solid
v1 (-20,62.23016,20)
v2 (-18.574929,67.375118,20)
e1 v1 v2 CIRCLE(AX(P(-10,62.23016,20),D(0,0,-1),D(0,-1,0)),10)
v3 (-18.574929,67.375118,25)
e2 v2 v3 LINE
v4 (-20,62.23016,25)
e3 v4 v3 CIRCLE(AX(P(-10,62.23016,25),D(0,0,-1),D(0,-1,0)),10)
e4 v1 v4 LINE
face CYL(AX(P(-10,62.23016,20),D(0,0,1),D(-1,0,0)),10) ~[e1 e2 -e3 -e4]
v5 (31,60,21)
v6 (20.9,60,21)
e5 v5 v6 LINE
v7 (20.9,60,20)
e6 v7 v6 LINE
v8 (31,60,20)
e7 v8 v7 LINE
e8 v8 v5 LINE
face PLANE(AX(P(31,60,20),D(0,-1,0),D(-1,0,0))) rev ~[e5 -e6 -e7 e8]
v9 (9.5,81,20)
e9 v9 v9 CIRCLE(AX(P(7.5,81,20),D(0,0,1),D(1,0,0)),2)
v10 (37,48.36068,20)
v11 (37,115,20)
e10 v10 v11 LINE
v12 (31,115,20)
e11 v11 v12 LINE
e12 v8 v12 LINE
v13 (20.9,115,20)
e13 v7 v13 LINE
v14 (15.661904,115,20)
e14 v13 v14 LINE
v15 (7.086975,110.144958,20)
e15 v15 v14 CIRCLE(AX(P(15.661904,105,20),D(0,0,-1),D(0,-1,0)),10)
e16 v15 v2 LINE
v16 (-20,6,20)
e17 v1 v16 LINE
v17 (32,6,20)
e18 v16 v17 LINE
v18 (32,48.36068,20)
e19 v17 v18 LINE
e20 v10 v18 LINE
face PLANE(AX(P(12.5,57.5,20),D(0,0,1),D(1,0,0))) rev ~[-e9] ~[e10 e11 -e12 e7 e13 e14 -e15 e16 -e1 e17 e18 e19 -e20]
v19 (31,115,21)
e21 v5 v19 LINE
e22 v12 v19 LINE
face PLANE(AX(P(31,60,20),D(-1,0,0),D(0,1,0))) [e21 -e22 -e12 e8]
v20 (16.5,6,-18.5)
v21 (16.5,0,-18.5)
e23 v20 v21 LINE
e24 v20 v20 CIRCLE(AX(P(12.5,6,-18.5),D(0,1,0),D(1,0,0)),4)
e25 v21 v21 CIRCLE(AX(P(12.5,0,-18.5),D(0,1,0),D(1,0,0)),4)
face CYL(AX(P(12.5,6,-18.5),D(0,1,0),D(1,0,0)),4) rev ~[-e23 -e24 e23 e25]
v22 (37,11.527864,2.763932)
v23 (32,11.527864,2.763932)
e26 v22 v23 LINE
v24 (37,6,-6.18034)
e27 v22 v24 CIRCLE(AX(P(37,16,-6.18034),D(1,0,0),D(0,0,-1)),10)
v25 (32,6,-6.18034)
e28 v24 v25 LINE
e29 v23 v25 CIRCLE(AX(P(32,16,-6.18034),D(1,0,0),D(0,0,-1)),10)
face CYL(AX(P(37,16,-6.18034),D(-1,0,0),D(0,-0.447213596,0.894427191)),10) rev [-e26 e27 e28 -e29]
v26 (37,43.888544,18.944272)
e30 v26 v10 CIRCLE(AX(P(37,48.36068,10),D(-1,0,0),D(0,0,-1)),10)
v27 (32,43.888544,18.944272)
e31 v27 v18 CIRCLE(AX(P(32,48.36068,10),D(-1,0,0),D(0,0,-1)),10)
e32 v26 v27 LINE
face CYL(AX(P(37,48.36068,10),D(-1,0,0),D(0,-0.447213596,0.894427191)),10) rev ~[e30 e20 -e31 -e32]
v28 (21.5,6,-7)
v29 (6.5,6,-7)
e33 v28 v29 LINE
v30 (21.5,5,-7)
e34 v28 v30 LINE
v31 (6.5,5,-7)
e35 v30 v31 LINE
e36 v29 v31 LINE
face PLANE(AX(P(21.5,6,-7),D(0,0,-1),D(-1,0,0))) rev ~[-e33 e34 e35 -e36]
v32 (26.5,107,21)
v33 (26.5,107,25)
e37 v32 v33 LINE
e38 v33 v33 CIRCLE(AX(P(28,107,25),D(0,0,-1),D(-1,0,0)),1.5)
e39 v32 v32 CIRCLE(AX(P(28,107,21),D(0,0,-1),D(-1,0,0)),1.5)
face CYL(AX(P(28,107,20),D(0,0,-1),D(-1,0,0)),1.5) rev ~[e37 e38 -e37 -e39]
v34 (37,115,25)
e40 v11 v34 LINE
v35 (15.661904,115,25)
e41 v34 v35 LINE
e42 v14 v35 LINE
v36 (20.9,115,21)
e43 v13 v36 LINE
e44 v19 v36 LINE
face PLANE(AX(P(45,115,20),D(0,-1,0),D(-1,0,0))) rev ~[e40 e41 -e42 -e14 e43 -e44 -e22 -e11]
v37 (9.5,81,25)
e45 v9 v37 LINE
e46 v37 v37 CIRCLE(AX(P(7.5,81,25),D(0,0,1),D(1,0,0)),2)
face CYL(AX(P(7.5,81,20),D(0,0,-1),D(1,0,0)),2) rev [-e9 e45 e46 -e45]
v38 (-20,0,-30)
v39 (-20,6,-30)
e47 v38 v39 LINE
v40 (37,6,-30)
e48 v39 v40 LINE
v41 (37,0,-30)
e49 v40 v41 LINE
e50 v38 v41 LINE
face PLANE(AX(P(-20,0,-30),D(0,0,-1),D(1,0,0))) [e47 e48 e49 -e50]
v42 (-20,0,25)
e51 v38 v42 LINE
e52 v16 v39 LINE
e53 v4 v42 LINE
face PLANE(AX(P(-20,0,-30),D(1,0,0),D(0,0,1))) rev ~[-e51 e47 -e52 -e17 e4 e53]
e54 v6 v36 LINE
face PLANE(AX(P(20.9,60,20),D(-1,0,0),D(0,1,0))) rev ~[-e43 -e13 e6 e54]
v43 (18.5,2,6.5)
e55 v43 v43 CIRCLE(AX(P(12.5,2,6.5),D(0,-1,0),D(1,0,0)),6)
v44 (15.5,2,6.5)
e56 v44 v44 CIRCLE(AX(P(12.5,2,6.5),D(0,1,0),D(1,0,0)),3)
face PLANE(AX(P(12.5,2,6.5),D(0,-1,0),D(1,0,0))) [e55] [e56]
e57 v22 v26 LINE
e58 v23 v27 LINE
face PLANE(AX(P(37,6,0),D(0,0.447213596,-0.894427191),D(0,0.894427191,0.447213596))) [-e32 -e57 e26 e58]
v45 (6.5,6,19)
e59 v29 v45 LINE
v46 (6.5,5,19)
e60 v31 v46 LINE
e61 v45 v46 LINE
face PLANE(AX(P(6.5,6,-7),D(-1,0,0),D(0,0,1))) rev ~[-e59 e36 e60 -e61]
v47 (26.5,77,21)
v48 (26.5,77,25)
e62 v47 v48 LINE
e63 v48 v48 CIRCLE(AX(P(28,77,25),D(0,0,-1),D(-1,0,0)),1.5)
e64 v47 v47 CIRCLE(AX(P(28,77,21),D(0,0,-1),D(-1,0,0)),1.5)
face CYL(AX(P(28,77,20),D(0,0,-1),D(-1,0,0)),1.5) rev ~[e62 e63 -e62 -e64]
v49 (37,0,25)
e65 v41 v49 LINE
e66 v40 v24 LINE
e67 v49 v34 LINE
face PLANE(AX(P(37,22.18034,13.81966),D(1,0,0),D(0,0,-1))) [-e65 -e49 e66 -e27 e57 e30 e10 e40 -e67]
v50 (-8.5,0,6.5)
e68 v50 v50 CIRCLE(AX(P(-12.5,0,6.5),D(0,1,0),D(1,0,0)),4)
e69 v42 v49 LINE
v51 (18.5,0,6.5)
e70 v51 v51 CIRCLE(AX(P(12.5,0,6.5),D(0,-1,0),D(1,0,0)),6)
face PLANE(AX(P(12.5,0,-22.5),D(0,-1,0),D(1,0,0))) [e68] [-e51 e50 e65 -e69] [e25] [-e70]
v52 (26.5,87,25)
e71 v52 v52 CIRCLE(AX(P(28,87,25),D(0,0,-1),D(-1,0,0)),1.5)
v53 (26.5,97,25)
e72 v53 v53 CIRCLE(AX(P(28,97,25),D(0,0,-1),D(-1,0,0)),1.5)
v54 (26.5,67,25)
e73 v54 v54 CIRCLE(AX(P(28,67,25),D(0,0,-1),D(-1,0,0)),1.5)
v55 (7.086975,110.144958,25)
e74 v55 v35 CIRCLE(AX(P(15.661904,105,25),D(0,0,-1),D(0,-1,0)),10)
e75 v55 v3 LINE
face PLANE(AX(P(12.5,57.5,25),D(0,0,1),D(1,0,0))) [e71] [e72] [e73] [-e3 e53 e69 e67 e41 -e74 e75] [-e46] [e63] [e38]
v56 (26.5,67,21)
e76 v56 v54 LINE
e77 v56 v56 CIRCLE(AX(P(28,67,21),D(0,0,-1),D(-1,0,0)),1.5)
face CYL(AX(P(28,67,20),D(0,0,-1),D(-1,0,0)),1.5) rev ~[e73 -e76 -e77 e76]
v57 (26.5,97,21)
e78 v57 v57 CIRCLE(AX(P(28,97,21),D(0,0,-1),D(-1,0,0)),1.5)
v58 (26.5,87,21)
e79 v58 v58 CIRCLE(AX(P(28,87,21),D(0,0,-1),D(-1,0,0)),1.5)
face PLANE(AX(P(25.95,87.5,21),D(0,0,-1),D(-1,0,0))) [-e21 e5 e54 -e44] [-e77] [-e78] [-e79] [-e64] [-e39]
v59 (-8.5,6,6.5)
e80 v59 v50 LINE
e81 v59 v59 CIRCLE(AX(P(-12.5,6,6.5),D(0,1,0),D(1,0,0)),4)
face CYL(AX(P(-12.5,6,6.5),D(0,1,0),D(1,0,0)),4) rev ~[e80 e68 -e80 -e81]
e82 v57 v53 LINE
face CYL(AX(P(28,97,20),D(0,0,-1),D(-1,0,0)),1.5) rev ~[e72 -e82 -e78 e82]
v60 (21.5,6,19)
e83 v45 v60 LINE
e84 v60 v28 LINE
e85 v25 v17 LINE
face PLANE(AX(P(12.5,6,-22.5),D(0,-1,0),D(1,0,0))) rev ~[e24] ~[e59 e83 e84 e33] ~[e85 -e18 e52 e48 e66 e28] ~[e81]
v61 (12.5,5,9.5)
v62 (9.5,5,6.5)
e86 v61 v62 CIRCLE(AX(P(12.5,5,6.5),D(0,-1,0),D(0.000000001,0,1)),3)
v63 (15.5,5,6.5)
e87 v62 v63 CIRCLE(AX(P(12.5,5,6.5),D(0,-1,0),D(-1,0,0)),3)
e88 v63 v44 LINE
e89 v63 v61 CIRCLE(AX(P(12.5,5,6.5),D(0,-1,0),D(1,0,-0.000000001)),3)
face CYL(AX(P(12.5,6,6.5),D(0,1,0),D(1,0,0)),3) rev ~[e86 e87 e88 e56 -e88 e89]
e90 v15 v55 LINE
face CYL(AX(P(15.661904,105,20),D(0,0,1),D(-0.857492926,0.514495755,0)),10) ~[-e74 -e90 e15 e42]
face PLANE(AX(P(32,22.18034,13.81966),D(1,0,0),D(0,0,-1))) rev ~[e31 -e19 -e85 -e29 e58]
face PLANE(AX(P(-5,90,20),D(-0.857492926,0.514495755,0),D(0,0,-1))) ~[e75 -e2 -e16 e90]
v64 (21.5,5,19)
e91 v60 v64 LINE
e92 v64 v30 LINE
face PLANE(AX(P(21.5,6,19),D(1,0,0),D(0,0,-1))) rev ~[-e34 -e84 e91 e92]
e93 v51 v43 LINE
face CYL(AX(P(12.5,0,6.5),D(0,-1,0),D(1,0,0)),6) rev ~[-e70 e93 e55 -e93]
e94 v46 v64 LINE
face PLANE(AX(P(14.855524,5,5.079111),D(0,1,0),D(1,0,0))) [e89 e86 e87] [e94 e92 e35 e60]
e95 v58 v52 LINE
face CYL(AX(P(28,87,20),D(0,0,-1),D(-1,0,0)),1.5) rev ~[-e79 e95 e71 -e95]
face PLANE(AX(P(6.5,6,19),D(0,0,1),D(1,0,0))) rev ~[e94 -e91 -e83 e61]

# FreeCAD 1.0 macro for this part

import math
import FreeCAD as App
import Part
import Sketcher

V = App.Vector


def edges_at(feature, points):
    """Names of the edges that pass closest to the given points."""
    edges = feature.Shape.Edges
    near = lambda p: min(range(len(edges)), key=lambda i: edges[i].distToShape(Part.Vertex(*p))[0])
    return sorted({f"Edge{near(p) + 1}" for p in points})

doc = App.newDocument("Part")
body = doc.addObject("PartDesign::Body", "Body")

sketch1 = doc.addObject("Sketcher::SketchObject", "Sketch")
body.addObject(sketch1)
sketch1.AttachmentSupport = (doc.XZ_Plane, [""])
sketch1.MapMode = "FlatFace"
sketch1.addGeometry([
    Part.LineSegment(V(-20, -15, 0), V(-20, 20, 0)),
    Part.LineSegment(V(-20, 20, 0), V(45, 20, 0)),
    Part.LineSegment(V(45, 20, 0), V(45, -15, 0)),
    Part.LineSegment(V(45, -15, 0), V(-20, -15, 0)),
], False)
sketch1.addConstraint([
    Sketcher.Constraint("Coincident", 0, 2, 1, 1),
    Sketcher.Constraint("Coincident", 1, 2, 2, 1),
    Sketcher.Constraint("Coincident", 2, 2, 3, 1),
    Sketcher.Constraint("Coincident", 3, 2, 0, 1),
    Sketcher.Constraint("Vertical", 0),
    Sketcher.Constraint("Horizontal", 1),
    Sketcher.Constraint("Vertical", 2),
    Sketcher.Constraint("Horizontal", 3),
    Sketcher.Constraint("DistanceX", 1, 1, 1, 2, 65.0),
    Sketcher.Constraint("DistanceY", 0, 1, 0, 2, 35.0),
    Sketcher.Constraint("DistanceX", 0, 2, -1, 1, 20.0),
    Sketcher.Constraint("DistanceY", -1, 1, 0, 2, 20.0),
])
pad1 = doc.addObject("PartDesign::Pad", "Pad")
body.addObject(pad1)
pad1.Profile = sketch1
pad1.Length = 6
pad1.Reversed = True

sketch2 = doc.addObject("Sketcher::SketchObject", "Sketch001")
body.addObject(sketch2)
sketch2.AttachmentSupport = (doc.XZ_Plane, [""])
sketch2.MapMode = "FlatFace"
sketch2.AttachmentOffset = App.Placement(V(0, 0, -6), App.Rotation())
sketch2.addGeometry([
    Part.Circle(V(12.5, 6.5, 0), V(0, 0, 1), 3),
    Part.Circle(V(-12.5, 6.5, 0), V(0, 0, 1), 4),
], False)
sketch2.addConstraint([
    Sketcher.Constraint("Symmetric", 0, 3, 1, 3, -2),
    Sketcher.Constraint("Diameter", 0, 6.0),
    Sketcher.Constraint("Diameter", 1, 8.0),
    Sketcher.Constraint("DistanceX", 1, 3, 0, 3, 25.0),
    Sketcher.Constraint("DistanceY", -1, 1, 0, 3, 6.5),
])
pocket1 = doc.addObject("PartDesign::Pocket", "Pocket")
body.addObject(pocket1)
pocket1.Profile = sketch2
pocket1.Type = "ThroughAll"
pocket1.Reversed = True

sketch3 = doc.addObject("Sketcher::SketchObject", "Sketch002")
body.addObject(sketch3)
sketch3.AttachmentSupport = (doc.XZ_Plane, [""])
sketch3.MapMode = "FlatFace"
sketch3.AttachmentOffset = App.Placement(V(0, 0, -6), App.Rotation())
sketch3.addGeometry([
    Part.LineSegment(V(21.5, 19, 0), V(21.5, -7, 0)),
    Part.LineSegment(V(21.5, -7, 0), V(6.5, -7, 0)),
    Part.LineSegment(V(6.5, -7, 0), V(6.5, 19, 0)),
    Part.LineSegment(V(6.5, 19, 0), V(21.5, 19, 0)),
    Part.ArcOfCircle(Part.Circle(V(12.5, 6.5, 0), V(0, 0, 1), 3), math.radians(180), math.radians(360)),
    Part.ArcOfCircle(Part.Circle(V(12.5, 6.5, 0), V(0, 0, 1), 3), math.radians(0), math.radians(90)),
    Part.ArcOfCircle(Part.Circle(V(12.5, 6.5, 0), V(0, 0, 1), 3), math.radians(90), math.radians(180)),
], False)
sketch3.addConstraint([
    Sketcher.Constraint("Coincident", 0, 2, 1, 1),
    Sketcher.Constraint("Coincident", 1, 2, 2, 1),
    Sketcher.Constraint("Coincident", 2, 2, 3, 1),
    Sketcher.Constraint("Coincident", 3, 2, 0, 1),
    Sketcher.Constraint("Tangent", 4, 2, 5, 1),
    Sketcher.Constraint("Tangent", 5, 2, 6, 1),
    Sketcher.Constraint("Tangent", 6, 2, 4, 1),
    Sketcher.Constraint("Vertical", 0),
    Sketcher.Constraint("Horizontal", 1),
    Sketcher.Constraint("Vertical", 2),
    Sketcher.Constraint("Horizontal", 3),
    Sketcher.Constraint("Horizontal", 6, 3, 4, 2),
    Sketcher.Constraint("Horizontal", 4, 2, 6, 2),
    Sketcher.Constraint("Vertical", 6, 3, 5, 2),
    Sketcher.Constraint("Radius", 4, 3.0),
    Sketcher.Constraint("DistanceX", 1, 2, 1, 1, 15.0),
    Sketcher.Constraint("DistanceY", 0, 2, 0, 1, 26.0),
    Sketcher.Constraint("DistanceY", 0, 2, -1, 1, 7.0),
    Sketcher.Constraint("DistanceX", 4, 3, 0, 2, 9.0),
    Sketcher.Constraint("DistanceX", -1, 1, 4, 3, 12.5),
    Sketcher.Constraint("DistanceY", -1, 1, 4, 3, 6.5),
])
pocket2 = doc.addObject("PartDesign::Pocket", "Pocket001")
body.addObject(pocket2)
pocket2.Profile = sketch3
pocket2.Length = 1
pocket2.Reversed = True

sketch4 = doc.addObject("Sketcher::SketchObject", "Sketch003")
body.addObject(sketch4)
sketch4.AttachmentSupport = (doc.XY_Plane, [""])
sketch4.MapMode = "FlatFace"
sketch4.AttachmentOffset = App.Placement(V(0, 0, 20), App.Rotation())
sketch4.addGeometry([
    Part.LineSegment(V(-20, 0, 0), V(45, 0, 0)),
    Part.LineSegment(V(45, 0, 0), V(45, 115, 0)),
    Part.LineSegment(V(45, 115, 0), V(-20, 115, 0)),
    Part.LineSegment(V(-20, 115, 0), V(-20, 0, 0)),
    Part.Circle(V(7.5, 81, 0), V(0, 0, 1), 2),
], False)
sketch4.addConstraint([
    Sketcher.Constraint("Coincident", 0, 2, 1, 1),
    Sketcher.Constraint("Coincident", 1, 2, 2, 1),
    Sketcher.Constraint("Coincident", 2, 2, 3, 1),
    Sketcher.Constraint("Coincident", 3, 2, 0, 1),
    Sketcher.Constraint("Horizontal", 0),
    Sketcher.Constraint("Vertical", 1),
    Sketcher.Constraint("Horizontal", 2),
    Sketcher.Constraint("Vertical", 3),
    Sketcher.Constraint("PointOnObject", 0, 2, -1),
    Sketcher.Constraint("Diameter", 4, 4.0),
    Sketcher.Constraint("DistanceX", 0, 1, 0, 2, 65.0),
    Sketcher.Constraint("DistanceY", 1, 1, 1, 2, 115.0),
    Sketcher.Constraint("DistanceY", -1, 1, 4, 3, 81.0),
    Sketcher.Constraint("DistanceX", -1, 1, 0, 2, 45.0),
    Sketcher.Constraint("DistanceX", -1, 1, 4, 3, 7.5),
])
pad2 = doc.addObject("PartDesign::Pad", "Pad001")
body.addObject(pad2)
pad2.Profile = sketch4
pad2.Length = 5

sketch5 = doc.addObject("Sketcher::SketchObject", "Sketch004")
body.addObject(sketch5)
sketch5.AttachmentSupport = (doc.XY_Plane, [""])
sketch5.MapMode = "FlatFace"
sketch5.AttachmentOffset = App.Placement(V(0, 0, 20), App.Rotation())
sketch5.addGeometry(Part.Circle(V(28, 87, 0), V(0, 0, 1), 1.5), False)
sketch5.addConstraint([
    Sketcher.Constraint("Diameter", 0, 3.0),
    Sketcher.Constraint("DistanceX", -1, 1, 0, 3, 28.0),
    Sketcher.Constraint("DistanceY", -1, 1, 0, 3, 87.0),
])
pocket3 = doc.addObject("PartDesign::Pocket", "Pocket002")
body.addObject(pocket3)
pocket3.Profile = sketch5
pocket3.Type = "ThroughAll"
pocket3.Reversed = True

sketch6 = doc.addObject("Sketcher::SketchObject", "Sketch005")
body.addObject(sketch6)
sketch6.AttachmentSupport = (doc.XY_Plane, [""])
sketch6.MapMode = "FlatFace"
sketch6.AttachmentOffset = App.Placement(V(0, 0, 20), App.Rotation())
sketch6.addGeometry([
    Part.LineSegment(V(31, 115, 0), V(31, 60, 0)),
    Part.LineSegment(V(31, 60, 0), V(20.9, 60, 0)),
    Part.LineSegment(V(20.9, 60, 0), V(20.9, 115, 0)),
    Part.LineSegment(V(20.9, 115, 0), V(31, 115, 0)),
    Part.Circle(V(28, 87, 0), V(0, 0, 1), 1.5),
], False)
sketch6.addConstraint([
    Sketcher.Constraint("Coincident", 0, 2, 1, 1),
    Sketcher.Constraint("Coincident", 1, 2, 2, 1),
    Sketcher.Constraint("Coincident", 2, 2, 3, 1),
    Sketcher.Constraint("Coincident", 3, 2, 0, 1),
    Sketcher.Constraint("Vertical", 0),
    Sketcher.Constraint("Horizontal", 1),
    Sketcher.Constraint("Vertical", 2),
    Sketcher.Constraint("Horizontal", 3),
    Sketcher.Constraint("Diameter", 4, 3.0),
    Sketcher.Constraint("DistanceY", 0, 2, 0, 1, 55.0),
    Sketcher.Constraint("DistanceX", 1, 2, 1, 1, 10.1),
    Sketcher.Constraint("DistanceX", -1, 1, 4, 3, 28.0),
    Sketcher.Constraint("DistanceY", -1, 1, 4, 3, 87.0),
    Sketcher.Constraint("DistanceX", -1, 1, 0, 2, 31.0),
    Sketcher.Constraint("DistanceY", -1, 1, 0, 2, 60.0),
])
pocket4 = doc.addObject("PartDesign::Pocket", "Pocket003")
body.addObject(pocket4)
pocket4.Profile = sketch6
pocket4.Length = 1
pocket4.Reversed = True

sketch7 = doc.addObject("Sketcher::SketchObject", "Sketch006")
body.addObject(sketch7)
sketch7.AttachmentSupport = (doc.XZ_Plane, [""])
sketch7.MapMode = "FlatFace"
sketch7.addGeometry(Part.Circle(V(12.5, 6.5, 0), V(0, 0, 1), 6), False)
sketch7.addConstraint([
    Sketcher.Constraint("Diameter", 0, 12.0),
    Sketcher.Constraint("DistanceX", -1, 1, 0, 3, 12.5),
    Sketcher.Constraint("DistanceY", -1, 1, 0, 3, 6.5),
])
pocket5 = doc.addObject("PartDesign::Pocket", "Pocket004")
body.addObject(pocket5)
pocket5.Profile = sketch7
pocket5.Length = 2

sketch8 = doc.addObject("Sketcher::SketchObject", "Sketch007")
body.addObject(sketch8)
sketch8.AttachmentSupport = (doc.XZ_Plane, [""])
sketch8.MapMode = "FlatFace"
sketch8.addGeometry([
    Part.LineSegment(V(-20, -15, 0), V(-20, -30, 0)),
    Part.LineSegment(V(-20, -30, 0), V(45, -30, 0)),
    Part.LineSegment(V(45, -30, 0), V(45, -15, 0)),
    Part.LineSegment(V(45, -15, 0), V(-20, -15, 0)),
], False)
sketch8.addConstraint([
    Sketcher.Constraint("Coincident", 0, 2, 1, 1),
    Sketcher.Constraint("Coincident", 1, 2, 2, 1),
    Sketcher.Constraint("Coincident", 2, 2, 3, 1),
    Sketcher.Constraint("Coincident", 3, 2, 0, 1),
    Sketcher.Constraint("Vertical", 0),
    Sketcher.Constraint("Horizontal", 1),
    Sketcher.Constraint("Vertical", 2),
    Sketcher.Constraint("Horizontal", 3),
    Sketcher.Constraint("DistanceX", 1, 1, 1, 2, 65.0),
    Sketcher.Constraint("DistanceY", 0, 2, 0, 1, 15.0),
    Sketcher.Constraint("DistanceX", 0, 2, -1, 1, 20.0),
    Sketcher.Constraint("DistanceY", 0, 2, -1, 1, 30.0),
])
pad3 = doc.addObject("PartDesign::Pad", "Pad002")
body.addObject(pad3)
pad3.Profile = sketch8
pad3.Length = 6
pad3.Reversed = True

sketch9 = doc.addObject("Sketcher::SketchObject", "Sketch008")
body.addObject(sketch9)
sketch9.AttachmentSupport = (doc.XZ_Plane, [""])
sketch9.MapMode = "FlatFace"
sketch9.AttachmentOffset = App.Placement(V(0, 0, -6), App.Rotation())
sketch9.addGeometry(Part.Circle(V(12.5, -18.5, 0), V(0, 0, 1), 4), False)
sketch9.addConstraint([
    Sketcher.Constraint("Diameter", 0, 8.0),
    Sketcher.Constraint("DistanceX", -1, 1, 0, 3, 12.5),
    Sketcher.Constraint("DistanceY", 0, 3, -1, 1, 18.5),
])
pocket6 = doc.addObject("PartDesign::Pocket", "Pocket005")
body.addObject(pocket6)
pocket6.Profile = sketch9
pocket6.Length = 6
pocket6.Reversed = True

sketch10 = doc.addObject("Sketcher::SketchObject", "Sketch009")
body.addObject(sketch10)
sketch10.AttachmentSupport = (doc.YZ_Plane, [""])
sketch10.MapMode = "FlatFace"
sketch10.AttachmentOffset = App.Placement(V(0, 0, 45), App.Rotation())
sketch10.addGeometry([
    Part.LineSegment(V(195.289563, 121.356725, 0), V(-4.554309, 121.356725, 0)),
    Part.LineSegment(V(-4.554309, 121.356725, 0), V(-4.554309, -40.609762, 0)),
    Part.LineSegment(V(-4.554309, -40.609762, 0), V(195.289563, -40.609762, 0)),
    Part.LineSegment(V(195.289563, -40.609762, 0), V(195.289563, 121.356725, 0)),
], False)
sketch10.addConstraint([
    Sketcher.Constraint("Coincident", 0, 2, 1, 1),
    Sketcher.Constraint("Coincident", 1, 2, 2, 1),
    Sketcher.Constraint("Coincident", 2, 2, 3, 1),
    Sketcher.Constraint("Coincident", 3, 2, 0, 1),
    Sketcher.Constraint("Horizontal", 0),
    Sketcher.Constraint("Vertical", 1),
    Sketcher.Constraint("Horizontal", 2),
    Sketcher.Constraint("Vertical", 3),
    Sketcher.Constraint("DistanceX", 0, 2, 0, 1, 199.843872),
    Sketcher.Constraint("DistanceY", 1, 2, 1, 1, 161.966487),
    Sketcher.Constraint("DistanceX", 0, 2, -1, 1, 4.554309),
    Sketcher.Constraint("DistanceY", 1, 2, -1, 1, 40.609762),
])
pocket7 = doc.addObject("PartDesign::Pocket", "Pocket006")
body.addObject(pocket7)
pocket7.Profile = sketch10
pocket7.Length = 8
doc.recompute()

linearpattern = doc.addObject("PartDesign::LinearPattern", "LinearPattern")
body.addObject(linearpattern)
linearpattern.Originals = [pocket3]
linearpattern.Direction = (doc.Y_Axis, [""])
linearpattern.Mode = "offset"
linearpattern.Offset = 10
linearpattern.Occurrences = 3
linearpattern.Reversed = True
body.Tip = linearpattern
doc.recompute()

linearpattern2 = doc.addObject("PartDesign::LinearPattern", "LinearPattern001")
body.addObject(linearpattern2)
linearpattern2.Originals = [pocket3]
linearpattern2.Direction = (doc.Y_Axis, [""])
linearpattern2.Mode = "offset"
linearpattern2.Offset = 10
linearpattern2.Occurrences = 3
body.Tip = linearpattern2
doc.recompute()

chamfer = doc.addObject("PartDesign::Chamfer", "Chamfer")
body.addObject(chamfer)
chamfer.Base = (linearpattern2, edges_at(linearpattern2, [(-20, 115, 22.5)]))
chamfer.ChamferType = "Two distances"
chamfer.Size = 30
chamfer.Size2 = 50
doc.recompute()

fillet = doc.addObject("PartDesign::Fillet", "Fillet")
body.addObject(fillet)
fillet.Base = (chamfer, edges_at(chamfer, [(-20, 65, 22.5), (10, 115, 22.5)]))
fillet.Radius = 10

sketch11 = doc.addObject("Sketcher::SketchObject", "Sketch010")
body.addObject(sketch11)
sketch11.AttachmentSupport = (doc.YZ_Plane, [""])
sketch11.MapMode = "FlatFace"
sketch11.AttachmentOffset = App.Placement(V(0, 0, 37), App.Rotation())
sketch11.addGeometry([
    Part.LineSegment(V(6, 20, 0), V(6, 0, 0)),
    Part.LineSegment(V(6, 0, 0), V(46, 20, 0)),
    Part.LineSegment(V(46, 20, 0), V(6, 20, 0)),
], False)
sketch11.addConstraint([
    Sketcher.Constraint("Coincident", 0, 2, 1, 1),
    Sketcher.Constraint("Coincident", 1, 2, 2, 1),
    Sketcher.Constraint("Coincident", 2, 2, 0, 1),
    Sketcher.Constraint("Vertical", 0),
    Sketcher.Constraint("Horizontal", 2),
    Sketcher.Constraint("PointOnObject", 0, 2, -1),
    Sketcher.Constraint("DistanceX", 2, 2, 2, 1, 40.0),
    Sketcher.Constraint("DistanceY", 0, 2, 0, 1, 20.0),
    Sketcher.Constraint("DistanceX", -1, 1, 0, 2, 6.0),
])
pad4 = doc.addObject("PartDesign::Pad", "Pad003")
body.addObject(pad4)
pad4.Profile = sketch11
pad4.Length = 5
pad4.Reversed = True
doc.recompute()

fillet2 = doc.addObject("PartDesign::Fillet", "Fillet001")
body.addObject(fillet2)
fillet2.Base = (pad4, edges_at(pad4, [(34.5, 46, 20), (34.5, 6, 0)]))
fillet2.Radius = 10

doc.recompute()
